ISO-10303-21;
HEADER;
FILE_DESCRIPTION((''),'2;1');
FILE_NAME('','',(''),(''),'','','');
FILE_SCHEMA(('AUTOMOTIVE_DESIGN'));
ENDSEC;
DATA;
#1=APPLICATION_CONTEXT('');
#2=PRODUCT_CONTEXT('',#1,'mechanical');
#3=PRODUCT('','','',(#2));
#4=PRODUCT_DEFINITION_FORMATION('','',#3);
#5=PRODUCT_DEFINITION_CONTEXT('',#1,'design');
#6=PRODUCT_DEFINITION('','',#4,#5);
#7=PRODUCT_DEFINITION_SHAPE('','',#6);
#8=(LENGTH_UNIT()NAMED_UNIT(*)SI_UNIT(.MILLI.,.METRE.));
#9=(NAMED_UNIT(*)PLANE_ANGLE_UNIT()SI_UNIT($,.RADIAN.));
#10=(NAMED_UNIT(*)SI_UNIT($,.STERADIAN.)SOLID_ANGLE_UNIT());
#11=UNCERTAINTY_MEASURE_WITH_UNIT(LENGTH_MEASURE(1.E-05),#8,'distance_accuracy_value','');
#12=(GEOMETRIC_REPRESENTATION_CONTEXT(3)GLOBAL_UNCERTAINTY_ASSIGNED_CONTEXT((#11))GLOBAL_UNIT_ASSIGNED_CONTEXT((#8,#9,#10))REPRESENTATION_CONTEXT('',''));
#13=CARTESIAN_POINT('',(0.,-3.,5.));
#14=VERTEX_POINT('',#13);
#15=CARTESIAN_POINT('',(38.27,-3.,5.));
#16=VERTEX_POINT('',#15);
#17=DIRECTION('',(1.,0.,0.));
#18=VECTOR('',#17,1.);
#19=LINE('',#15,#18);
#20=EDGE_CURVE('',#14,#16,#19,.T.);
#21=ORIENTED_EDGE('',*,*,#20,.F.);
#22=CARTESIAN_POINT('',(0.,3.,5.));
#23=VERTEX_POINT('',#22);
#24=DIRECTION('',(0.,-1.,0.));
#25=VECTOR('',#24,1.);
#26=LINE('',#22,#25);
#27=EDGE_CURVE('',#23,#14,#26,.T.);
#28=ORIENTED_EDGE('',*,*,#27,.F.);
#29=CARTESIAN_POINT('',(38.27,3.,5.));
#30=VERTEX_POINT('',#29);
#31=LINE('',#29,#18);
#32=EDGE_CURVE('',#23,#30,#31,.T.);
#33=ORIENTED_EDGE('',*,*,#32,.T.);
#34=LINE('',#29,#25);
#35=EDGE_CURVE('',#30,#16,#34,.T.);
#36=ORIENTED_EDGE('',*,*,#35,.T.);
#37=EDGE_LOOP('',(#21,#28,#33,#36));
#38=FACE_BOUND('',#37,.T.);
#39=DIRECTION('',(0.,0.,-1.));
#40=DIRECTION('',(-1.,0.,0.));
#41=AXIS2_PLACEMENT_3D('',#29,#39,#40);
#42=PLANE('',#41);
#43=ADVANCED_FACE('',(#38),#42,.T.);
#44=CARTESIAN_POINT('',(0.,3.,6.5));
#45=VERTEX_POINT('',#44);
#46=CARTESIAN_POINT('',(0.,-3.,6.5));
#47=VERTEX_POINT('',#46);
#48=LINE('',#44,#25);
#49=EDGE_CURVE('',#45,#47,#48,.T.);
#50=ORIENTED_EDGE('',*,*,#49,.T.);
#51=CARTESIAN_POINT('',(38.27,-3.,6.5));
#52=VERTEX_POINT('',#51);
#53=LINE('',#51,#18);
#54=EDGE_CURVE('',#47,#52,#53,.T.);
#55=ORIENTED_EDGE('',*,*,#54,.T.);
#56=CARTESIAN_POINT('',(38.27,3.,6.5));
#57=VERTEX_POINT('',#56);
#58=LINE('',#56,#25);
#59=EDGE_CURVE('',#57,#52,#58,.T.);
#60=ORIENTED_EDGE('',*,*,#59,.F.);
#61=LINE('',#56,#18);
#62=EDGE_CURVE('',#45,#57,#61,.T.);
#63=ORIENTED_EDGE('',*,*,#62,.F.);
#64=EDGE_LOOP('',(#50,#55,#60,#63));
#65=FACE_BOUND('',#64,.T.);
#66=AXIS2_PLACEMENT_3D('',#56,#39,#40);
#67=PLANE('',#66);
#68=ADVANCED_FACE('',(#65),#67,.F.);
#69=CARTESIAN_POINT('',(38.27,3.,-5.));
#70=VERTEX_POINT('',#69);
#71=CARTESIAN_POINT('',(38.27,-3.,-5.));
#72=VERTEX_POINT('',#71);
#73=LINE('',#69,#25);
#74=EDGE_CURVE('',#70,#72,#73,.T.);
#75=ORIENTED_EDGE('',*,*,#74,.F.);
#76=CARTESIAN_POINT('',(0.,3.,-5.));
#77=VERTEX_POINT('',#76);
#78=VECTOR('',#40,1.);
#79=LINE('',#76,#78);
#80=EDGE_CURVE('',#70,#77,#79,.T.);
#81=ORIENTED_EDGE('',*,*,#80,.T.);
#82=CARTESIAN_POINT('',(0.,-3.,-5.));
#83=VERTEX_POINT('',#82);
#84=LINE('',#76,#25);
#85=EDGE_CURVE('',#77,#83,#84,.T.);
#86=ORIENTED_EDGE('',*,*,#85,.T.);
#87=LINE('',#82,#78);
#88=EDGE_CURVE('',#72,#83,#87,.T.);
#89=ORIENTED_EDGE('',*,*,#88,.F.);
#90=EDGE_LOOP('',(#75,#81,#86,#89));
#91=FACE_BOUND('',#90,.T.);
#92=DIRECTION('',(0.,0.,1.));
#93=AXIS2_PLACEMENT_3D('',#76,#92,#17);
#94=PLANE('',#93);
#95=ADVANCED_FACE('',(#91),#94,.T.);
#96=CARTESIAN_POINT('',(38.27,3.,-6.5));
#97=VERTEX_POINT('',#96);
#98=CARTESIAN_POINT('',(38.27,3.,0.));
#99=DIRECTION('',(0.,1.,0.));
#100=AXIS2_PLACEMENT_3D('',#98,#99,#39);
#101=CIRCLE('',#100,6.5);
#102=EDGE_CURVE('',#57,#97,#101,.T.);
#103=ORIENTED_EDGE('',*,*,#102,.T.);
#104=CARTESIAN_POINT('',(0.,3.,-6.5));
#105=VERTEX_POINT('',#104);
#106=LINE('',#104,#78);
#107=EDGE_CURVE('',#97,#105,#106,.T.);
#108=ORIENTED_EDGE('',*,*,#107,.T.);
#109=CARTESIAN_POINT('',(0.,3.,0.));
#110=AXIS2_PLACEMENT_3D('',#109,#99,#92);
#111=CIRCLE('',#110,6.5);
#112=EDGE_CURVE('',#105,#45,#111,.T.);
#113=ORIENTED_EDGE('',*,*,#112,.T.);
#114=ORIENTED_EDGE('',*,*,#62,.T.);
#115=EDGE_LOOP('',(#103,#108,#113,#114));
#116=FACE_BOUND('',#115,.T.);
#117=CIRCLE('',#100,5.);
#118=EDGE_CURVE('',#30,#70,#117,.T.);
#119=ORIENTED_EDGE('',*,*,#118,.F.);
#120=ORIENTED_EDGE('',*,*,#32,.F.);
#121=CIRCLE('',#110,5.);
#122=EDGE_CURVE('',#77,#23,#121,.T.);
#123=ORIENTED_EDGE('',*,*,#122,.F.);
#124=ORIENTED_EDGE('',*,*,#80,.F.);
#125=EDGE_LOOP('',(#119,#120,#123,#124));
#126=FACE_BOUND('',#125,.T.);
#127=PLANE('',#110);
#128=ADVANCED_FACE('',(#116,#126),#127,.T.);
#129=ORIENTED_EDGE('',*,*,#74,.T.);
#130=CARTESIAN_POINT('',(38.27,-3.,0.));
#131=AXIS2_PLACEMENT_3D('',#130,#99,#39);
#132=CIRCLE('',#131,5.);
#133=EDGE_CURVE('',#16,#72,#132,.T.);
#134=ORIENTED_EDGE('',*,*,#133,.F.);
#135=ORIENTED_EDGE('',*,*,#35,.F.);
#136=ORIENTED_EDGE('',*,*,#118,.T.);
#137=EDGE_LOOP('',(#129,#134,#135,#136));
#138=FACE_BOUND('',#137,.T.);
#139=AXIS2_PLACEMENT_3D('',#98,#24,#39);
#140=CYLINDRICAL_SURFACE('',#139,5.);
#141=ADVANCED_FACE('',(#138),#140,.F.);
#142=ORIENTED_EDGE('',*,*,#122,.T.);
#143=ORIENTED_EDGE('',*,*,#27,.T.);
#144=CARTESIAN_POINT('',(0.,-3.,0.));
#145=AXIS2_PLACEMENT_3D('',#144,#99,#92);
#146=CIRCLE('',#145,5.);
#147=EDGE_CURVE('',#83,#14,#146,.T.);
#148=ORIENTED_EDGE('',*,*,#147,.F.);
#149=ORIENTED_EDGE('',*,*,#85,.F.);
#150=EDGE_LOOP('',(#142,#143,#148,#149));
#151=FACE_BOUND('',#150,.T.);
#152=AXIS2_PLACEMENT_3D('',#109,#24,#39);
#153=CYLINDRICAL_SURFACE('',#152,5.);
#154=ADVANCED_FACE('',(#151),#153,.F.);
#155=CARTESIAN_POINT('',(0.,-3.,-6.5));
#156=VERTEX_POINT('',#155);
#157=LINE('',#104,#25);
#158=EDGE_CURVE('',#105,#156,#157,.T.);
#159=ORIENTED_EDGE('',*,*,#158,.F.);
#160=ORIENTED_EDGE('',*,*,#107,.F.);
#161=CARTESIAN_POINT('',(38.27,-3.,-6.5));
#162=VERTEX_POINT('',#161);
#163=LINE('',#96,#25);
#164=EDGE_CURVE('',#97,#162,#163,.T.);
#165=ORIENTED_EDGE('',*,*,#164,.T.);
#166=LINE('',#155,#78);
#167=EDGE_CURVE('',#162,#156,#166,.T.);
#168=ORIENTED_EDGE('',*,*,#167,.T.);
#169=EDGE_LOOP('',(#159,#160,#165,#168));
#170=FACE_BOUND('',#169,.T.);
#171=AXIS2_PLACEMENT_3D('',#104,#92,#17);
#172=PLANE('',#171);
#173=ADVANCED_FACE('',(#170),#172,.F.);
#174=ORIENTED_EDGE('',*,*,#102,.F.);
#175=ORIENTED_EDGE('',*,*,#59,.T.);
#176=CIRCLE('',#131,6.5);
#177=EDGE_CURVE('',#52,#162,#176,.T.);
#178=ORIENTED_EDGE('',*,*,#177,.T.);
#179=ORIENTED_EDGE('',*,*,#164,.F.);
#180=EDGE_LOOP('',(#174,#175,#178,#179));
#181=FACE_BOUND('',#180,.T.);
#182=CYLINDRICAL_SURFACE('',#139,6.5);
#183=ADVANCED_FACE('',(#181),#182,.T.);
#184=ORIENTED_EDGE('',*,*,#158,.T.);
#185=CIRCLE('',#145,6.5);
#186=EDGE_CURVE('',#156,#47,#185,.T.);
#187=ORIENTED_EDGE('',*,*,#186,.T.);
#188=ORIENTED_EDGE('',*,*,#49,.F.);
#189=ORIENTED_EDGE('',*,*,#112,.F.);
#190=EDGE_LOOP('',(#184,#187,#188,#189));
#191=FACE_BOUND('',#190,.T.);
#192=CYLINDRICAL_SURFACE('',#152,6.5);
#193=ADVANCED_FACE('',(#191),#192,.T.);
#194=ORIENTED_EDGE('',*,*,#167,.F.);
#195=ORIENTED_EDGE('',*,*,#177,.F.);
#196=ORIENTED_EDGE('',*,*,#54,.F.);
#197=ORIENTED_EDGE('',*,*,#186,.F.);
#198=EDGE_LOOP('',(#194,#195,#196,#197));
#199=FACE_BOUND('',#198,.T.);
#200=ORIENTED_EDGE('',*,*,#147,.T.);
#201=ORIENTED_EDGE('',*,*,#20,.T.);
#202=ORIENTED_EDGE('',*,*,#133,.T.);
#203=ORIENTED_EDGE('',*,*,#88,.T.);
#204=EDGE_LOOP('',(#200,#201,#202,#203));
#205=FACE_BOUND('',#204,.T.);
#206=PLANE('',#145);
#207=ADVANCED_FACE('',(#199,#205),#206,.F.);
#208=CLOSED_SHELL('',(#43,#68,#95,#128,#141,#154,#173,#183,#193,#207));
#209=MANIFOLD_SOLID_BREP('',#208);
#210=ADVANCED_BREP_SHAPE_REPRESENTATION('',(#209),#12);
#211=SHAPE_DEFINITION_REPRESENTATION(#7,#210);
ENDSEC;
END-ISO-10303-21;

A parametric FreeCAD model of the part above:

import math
import FreeCAD as App
import Part
import Sketcher

V = App.Vector
Q = App.Units.Quantity

doc = App.newDocument("Part")
body = doc.addObject("PartDesign::Body", "Body")

# Sketch on XZ plane
sketch1 = body.newObject("Sketcher::SketchObject", "Sketch")
sketch1.AttachmentSupport = (doc.getObject("XZ_Plane"), [""])
sketch1.MapMode = "FlatFace"
sketch1.addGeometry([
    Part.LineSegment(V(38, -6, 0), V(0, -6, 0)),  # 0
    Part.ArcOfCircle(Part.Circle(V(0, 0, 0), V(0, 0, 1), 6), math.radians(90), math.radians(270)),  # 1
    Part.LineSegment(V(0, 6, 0), V(38, 6, 0)),  # 2
    Part.ArcOfCircle(Part.Circle(V(38, 0, 0), V(0, 0, 1), 6), math.radians(-90), math.radians(90)),  # 3
    Part.LineSegment(V(0, -5, 0), V(38, -5, 0)),  # 4
    Part.ArcOfCircle(Part.Circle(V(38, 0, 0), V(0, 0, 1), 5), math.radians(-90), math.radians(90)),  # 5
    Part.LineSegment(V(38, 5, 0), V(0, 5, 0)),  # 6
    Part.ArcOfCircle(Part.Circle(V(0, 0, 0), V(0, 0, 1), 5), math.radians(90), math.radians(270)),  # 7
], False)
sketch1.addConstraint([
    Sketcher.Constraint("Tangent", 0, 2, 1, 2),
    Sketcher.Constraint("Tangent", 1, 1, 2, 1),
    Sketcher.Constraint("Tangent", 2, 2, 3, 2),
    Sketcher.Constraint("Tangent", 3, 1, 0, 1),
    Sketcher.Constraint("Tangent", 4, 2, 5, 1),
    Sketcher.Constraint("Tangent", 5, 2, 6, 1),
    Sketcher.Constraint("Tangent", 6, 2, 7, 1),
    Sketcher.Constraint("Tangent", 7, 2, 4, 1),
    Sketcher.Constraint("Horizontal", 0),
    Sketcher.Constraint("Horizontal", 2),
    Sketcher.Constraint("Horizontal", 4),
    Sketcher.Constraint("Horizontal", 6),
    Sketcher.Constraint("Coincident", 1, 3, -1, 1),
    Sketcher.Constraint("Coincident", 7, 3, -1, 1),
    Sketcher.Constraint("Vertical", 5, 3, 2, 2),
    Sketcher.Constraint("Radius", 5, Q("5 mm")),
    Sketcher.Constraint("Radius", 1, Q("6.5 mm")),
    Sketcher.Constraint("DistanceX", 0, 2, 0, 1, Q("38.27 mm")),
])
pad1 = body.newObject("PartDesign::Pad", "Pad")
pad1.Profile = sketch1
pad1.Length = 6
pad1.Midplane = True

doc.recompute()
